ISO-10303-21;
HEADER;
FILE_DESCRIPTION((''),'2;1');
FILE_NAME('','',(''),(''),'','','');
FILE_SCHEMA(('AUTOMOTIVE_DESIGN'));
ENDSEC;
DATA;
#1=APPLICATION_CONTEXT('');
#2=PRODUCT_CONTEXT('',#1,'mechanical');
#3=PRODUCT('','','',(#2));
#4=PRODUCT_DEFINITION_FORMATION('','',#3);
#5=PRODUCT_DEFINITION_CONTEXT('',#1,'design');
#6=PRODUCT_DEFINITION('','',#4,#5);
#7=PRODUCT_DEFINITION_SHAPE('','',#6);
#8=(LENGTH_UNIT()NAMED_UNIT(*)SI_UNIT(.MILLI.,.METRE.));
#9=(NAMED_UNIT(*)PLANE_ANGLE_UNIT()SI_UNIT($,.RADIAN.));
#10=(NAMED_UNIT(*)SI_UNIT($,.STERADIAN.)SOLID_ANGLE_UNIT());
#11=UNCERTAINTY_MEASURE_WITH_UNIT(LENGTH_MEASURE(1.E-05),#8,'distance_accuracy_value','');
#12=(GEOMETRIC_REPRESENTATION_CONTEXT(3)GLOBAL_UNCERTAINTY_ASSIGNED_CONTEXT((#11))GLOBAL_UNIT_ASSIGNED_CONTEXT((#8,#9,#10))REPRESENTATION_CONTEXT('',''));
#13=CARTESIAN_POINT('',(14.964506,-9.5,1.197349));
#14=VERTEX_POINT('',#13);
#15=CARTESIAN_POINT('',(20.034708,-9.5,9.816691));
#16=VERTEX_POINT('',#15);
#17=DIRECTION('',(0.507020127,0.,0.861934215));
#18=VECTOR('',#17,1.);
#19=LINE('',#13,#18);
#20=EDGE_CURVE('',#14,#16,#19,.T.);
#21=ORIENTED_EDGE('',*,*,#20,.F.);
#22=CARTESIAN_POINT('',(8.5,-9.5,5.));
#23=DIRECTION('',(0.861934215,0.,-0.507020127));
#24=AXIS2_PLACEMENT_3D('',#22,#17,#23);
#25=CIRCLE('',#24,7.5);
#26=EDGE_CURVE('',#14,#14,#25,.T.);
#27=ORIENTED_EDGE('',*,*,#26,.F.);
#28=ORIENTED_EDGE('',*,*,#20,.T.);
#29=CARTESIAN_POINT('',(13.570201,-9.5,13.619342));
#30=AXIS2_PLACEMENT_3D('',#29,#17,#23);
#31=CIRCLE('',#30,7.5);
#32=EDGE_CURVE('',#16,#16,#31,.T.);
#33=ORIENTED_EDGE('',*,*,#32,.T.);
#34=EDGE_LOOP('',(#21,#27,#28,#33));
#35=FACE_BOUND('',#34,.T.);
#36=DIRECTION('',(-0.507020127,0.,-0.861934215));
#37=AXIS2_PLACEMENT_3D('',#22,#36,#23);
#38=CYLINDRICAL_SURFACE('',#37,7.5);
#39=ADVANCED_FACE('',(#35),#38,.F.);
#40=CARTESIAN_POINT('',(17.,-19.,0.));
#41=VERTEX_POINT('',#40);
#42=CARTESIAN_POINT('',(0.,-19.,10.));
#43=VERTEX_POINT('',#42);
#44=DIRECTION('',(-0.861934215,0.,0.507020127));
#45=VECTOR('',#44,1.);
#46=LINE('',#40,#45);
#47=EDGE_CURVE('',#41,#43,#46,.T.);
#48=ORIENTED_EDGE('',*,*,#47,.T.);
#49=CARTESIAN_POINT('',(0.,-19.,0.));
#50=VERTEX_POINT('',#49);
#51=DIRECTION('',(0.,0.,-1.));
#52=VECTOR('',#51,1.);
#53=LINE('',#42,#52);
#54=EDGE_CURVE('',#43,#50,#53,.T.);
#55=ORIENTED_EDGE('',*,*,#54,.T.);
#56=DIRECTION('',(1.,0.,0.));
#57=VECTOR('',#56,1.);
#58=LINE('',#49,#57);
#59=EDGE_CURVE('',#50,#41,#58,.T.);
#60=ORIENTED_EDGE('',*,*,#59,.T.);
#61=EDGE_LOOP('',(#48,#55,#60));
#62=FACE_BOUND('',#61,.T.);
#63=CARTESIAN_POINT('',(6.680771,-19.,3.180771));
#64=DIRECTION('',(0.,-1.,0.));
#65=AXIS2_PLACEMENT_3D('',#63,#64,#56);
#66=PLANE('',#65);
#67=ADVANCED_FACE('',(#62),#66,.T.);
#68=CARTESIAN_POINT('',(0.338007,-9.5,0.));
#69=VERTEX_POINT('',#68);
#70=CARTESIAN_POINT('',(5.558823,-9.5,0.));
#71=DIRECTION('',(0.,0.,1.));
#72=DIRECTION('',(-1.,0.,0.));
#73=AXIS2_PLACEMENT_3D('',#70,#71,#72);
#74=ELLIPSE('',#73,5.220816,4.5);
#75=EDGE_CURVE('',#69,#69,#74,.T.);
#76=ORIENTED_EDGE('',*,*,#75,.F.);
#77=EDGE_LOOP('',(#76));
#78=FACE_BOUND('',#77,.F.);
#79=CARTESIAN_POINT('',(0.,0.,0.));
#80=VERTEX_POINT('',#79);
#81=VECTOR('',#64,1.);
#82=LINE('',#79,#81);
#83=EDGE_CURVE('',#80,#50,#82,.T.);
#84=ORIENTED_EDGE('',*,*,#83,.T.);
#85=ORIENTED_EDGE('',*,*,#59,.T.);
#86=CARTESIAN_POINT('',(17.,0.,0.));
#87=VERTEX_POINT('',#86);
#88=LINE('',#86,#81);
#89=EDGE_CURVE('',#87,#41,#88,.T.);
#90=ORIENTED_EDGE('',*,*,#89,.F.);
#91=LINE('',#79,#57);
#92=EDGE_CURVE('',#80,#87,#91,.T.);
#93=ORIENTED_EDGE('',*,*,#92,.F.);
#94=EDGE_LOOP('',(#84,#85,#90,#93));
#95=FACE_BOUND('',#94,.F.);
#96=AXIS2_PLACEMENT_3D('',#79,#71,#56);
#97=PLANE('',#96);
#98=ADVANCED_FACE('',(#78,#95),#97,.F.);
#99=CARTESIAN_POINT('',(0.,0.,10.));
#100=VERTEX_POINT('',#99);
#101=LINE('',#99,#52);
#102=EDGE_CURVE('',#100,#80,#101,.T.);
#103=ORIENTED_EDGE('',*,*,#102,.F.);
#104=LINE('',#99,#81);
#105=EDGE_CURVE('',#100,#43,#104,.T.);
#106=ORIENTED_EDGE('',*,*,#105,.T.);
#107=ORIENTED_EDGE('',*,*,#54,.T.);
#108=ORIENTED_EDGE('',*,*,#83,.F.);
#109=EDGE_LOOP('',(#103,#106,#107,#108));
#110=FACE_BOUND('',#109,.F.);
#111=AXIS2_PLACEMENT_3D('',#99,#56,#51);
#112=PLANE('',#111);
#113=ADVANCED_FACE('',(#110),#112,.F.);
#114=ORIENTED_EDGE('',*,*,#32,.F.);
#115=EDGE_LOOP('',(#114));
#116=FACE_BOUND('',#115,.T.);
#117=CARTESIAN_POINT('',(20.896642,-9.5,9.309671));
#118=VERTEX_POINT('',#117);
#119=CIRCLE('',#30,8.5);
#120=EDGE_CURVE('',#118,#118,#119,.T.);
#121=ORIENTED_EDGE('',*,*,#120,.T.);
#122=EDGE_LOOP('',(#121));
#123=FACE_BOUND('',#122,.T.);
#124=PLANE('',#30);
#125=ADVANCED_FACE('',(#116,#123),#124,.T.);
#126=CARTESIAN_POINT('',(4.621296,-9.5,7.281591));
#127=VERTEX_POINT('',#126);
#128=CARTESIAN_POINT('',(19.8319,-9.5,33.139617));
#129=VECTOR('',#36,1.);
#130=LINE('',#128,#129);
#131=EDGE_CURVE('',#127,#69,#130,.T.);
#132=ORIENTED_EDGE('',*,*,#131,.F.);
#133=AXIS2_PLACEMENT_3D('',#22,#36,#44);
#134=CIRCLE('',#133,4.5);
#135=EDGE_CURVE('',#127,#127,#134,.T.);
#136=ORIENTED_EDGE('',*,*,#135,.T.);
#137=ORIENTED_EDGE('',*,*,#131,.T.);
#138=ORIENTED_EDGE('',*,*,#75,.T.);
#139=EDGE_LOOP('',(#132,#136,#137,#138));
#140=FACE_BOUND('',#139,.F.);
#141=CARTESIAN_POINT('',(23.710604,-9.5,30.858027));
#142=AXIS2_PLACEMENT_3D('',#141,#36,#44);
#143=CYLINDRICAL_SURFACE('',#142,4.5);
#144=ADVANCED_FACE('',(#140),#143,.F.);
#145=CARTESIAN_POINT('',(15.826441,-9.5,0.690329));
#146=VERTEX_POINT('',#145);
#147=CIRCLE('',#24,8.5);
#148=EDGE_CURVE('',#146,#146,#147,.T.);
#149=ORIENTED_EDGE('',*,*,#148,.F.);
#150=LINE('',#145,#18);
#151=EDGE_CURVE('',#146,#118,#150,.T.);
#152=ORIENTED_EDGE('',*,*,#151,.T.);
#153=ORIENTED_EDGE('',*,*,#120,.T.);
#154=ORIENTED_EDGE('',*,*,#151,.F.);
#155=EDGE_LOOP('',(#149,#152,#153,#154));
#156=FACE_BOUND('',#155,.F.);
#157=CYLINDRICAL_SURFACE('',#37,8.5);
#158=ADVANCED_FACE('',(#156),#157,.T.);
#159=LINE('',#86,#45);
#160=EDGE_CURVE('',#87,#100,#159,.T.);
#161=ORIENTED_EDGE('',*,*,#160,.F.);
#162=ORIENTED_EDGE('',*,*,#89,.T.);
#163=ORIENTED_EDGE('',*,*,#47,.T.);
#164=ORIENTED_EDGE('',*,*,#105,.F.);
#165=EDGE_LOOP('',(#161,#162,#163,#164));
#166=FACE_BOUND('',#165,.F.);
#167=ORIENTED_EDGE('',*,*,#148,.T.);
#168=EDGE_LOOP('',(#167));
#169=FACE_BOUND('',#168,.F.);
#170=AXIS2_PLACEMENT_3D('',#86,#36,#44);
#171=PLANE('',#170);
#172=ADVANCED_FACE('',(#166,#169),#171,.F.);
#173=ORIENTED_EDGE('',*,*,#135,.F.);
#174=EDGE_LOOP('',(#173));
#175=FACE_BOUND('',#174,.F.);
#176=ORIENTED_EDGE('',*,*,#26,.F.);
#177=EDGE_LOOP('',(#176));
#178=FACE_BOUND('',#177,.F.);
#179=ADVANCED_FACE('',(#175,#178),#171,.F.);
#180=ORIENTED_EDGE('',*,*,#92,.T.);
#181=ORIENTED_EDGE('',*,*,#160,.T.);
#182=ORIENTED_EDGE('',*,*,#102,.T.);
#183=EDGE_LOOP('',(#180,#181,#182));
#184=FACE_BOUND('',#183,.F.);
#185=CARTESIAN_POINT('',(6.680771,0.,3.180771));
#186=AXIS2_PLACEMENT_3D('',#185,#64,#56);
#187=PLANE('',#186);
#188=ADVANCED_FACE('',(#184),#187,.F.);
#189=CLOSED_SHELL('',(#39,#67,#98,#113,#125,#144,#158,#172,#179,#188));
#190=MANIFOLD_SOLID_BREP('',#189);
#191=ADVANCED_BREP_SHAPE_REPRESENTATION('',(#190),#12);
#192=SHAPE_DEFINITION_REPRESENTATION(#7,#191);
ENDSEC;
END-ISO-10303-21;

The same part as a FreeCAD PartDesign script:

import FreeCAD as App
import Part
import Sketcher
Q = App.Units.Quantity


def add_polygon(sketch, points):
    """Adds a closed chain of lines whose ends are joined by coincident constraints."""
    first, n = sketch.GeometryCount, len(points)
    for a, b in zip(points, points[1:] + points[:1]):
        sketch.addGeometry(Part.LineSegment(App.Vector(*a, 0), App.Vector(*b, 0)), False)
    for i in range(n):
        sketch.addConstraint(Sketcher.Constraint("Coincident", first + i, 2, first + (i + 1) % n, 1))

doc = App.newDocument("Part")
body = doc.addObject("PartDesign::Body", "Body")

# Sketch on XZ plane
sketch1 = doc.addObject("Sketcher::SketchObject", "Sketch")
body.addObject(sketch1)
sketch1.AttachmentSupport = (doc.XZ_Plane, [""])
sketch1.MapMode = "FlatFace"
add_polygon(sketch1, [(0, 10), (0, 0), (17, 0)])  # lines 0-2
sketch1.addConstraint([
    Sketcher.Constraint("Vertical", 0),
    Sketcher.Constraint("Horizontal", 1),
    Sketcher.Constraint("Coincident", 0, 2, -1, 1),
    Sketcher.Constraint("DistanceX", 1, 1, 1, 2, Q("17 mm")),
    Sketcher.Constraint("DistanceY", 0, 2, 0, 1, Q("10 mm")),
])
pad1 = doc.addObject("PartDesign::Pad", "Pad")
body.addObject(pad1)
pad1.Profile = sketch1
pad1.Length = 19

# Sketch on an angled plane
sketch2 = doc.addObject("Sketcher::SketchObject", "Sketch001")
body.addObject(sketch2)
sketch2.Placement = App.Placement(App.Vector(4.37018, 0, 7.429306), App.Rotation(App.Vector(0.861934215, 0, -0.507020127), App.Vector(0, 1, 0), App.Vector(0.507020127, 0, 0.861934215), "ZXY"))
sketch2.addGeometry(Part.Circle(App.Vector(4.8, -9.5, 0), App.Vector(0, 0, 1), 4.5), False)
sketch2.addConstraint([
    Sketcher.Constraint("Diameter", 0, Q("9 mm")),
    Sketcher.Constraint("DistanceY", 0, 3, -1, 1, Q("9.5 mm")),
    Sketcher.Constraint("DistanceX", -1, 1, 0, 3, Q("4.79134 mm")),
])
doc.recompute()
hole = doc.addObject("PartDesign::Hole", "Hole")
body.addObject(hole)
hole.Profile = sketch2
hole.ThreadType = "None"
hole.Diameter = 9
hole.DepthType = "Dimension"
hole.Depth = 30
hole.DrillPoint = "Flat"

# Sketch on an angled plane
sketch3 = doc.addObject("Sketcher::SketchObject", "Sketch002")
body.addObject(sketch3)
sketch3.Placement = App.Placement(App.Vector(4.37018, 0, 7.429306), App.Rotation(App.Vector(0.861934215, 0, -0.507020127), App.Vector(0, 1, 0), App.Vector(0.507020127, 0, 0.861934215), "ZXY"))
sketch3.addGeometry([
    Part.Circle(App.Vector(5, -10, 0), App.Vector(0, 0, 1), 8),
    Part.Circle(App.Vector(5, -10, 0), App.Vector(0, 0, 1), 8),
], False)
sketch3.addConstraint([
    Sketcher.Constraint("Coincident", 1, 3, 0, 3),
    Sketcher.Constraint("Diameter", 0, Q("17 mm")),
    Sketcher.Constraint("Diameter", 1, Q("15 mm")),
    Sketcher.Constraint("DistanceY", 0, 3, -1, 1, Q("9.5 mm")),
    Sketcher.Constraint("DistanceX", -1, 1, 0, 3, Q("4.79134 mm")),
])
pad2 = doc.addObject("PartDesign::Pad", "Pad001")
body.addObject(pad2)
pad2.Profile = sketch3
pad2.Length = 10

doc.recompute()
